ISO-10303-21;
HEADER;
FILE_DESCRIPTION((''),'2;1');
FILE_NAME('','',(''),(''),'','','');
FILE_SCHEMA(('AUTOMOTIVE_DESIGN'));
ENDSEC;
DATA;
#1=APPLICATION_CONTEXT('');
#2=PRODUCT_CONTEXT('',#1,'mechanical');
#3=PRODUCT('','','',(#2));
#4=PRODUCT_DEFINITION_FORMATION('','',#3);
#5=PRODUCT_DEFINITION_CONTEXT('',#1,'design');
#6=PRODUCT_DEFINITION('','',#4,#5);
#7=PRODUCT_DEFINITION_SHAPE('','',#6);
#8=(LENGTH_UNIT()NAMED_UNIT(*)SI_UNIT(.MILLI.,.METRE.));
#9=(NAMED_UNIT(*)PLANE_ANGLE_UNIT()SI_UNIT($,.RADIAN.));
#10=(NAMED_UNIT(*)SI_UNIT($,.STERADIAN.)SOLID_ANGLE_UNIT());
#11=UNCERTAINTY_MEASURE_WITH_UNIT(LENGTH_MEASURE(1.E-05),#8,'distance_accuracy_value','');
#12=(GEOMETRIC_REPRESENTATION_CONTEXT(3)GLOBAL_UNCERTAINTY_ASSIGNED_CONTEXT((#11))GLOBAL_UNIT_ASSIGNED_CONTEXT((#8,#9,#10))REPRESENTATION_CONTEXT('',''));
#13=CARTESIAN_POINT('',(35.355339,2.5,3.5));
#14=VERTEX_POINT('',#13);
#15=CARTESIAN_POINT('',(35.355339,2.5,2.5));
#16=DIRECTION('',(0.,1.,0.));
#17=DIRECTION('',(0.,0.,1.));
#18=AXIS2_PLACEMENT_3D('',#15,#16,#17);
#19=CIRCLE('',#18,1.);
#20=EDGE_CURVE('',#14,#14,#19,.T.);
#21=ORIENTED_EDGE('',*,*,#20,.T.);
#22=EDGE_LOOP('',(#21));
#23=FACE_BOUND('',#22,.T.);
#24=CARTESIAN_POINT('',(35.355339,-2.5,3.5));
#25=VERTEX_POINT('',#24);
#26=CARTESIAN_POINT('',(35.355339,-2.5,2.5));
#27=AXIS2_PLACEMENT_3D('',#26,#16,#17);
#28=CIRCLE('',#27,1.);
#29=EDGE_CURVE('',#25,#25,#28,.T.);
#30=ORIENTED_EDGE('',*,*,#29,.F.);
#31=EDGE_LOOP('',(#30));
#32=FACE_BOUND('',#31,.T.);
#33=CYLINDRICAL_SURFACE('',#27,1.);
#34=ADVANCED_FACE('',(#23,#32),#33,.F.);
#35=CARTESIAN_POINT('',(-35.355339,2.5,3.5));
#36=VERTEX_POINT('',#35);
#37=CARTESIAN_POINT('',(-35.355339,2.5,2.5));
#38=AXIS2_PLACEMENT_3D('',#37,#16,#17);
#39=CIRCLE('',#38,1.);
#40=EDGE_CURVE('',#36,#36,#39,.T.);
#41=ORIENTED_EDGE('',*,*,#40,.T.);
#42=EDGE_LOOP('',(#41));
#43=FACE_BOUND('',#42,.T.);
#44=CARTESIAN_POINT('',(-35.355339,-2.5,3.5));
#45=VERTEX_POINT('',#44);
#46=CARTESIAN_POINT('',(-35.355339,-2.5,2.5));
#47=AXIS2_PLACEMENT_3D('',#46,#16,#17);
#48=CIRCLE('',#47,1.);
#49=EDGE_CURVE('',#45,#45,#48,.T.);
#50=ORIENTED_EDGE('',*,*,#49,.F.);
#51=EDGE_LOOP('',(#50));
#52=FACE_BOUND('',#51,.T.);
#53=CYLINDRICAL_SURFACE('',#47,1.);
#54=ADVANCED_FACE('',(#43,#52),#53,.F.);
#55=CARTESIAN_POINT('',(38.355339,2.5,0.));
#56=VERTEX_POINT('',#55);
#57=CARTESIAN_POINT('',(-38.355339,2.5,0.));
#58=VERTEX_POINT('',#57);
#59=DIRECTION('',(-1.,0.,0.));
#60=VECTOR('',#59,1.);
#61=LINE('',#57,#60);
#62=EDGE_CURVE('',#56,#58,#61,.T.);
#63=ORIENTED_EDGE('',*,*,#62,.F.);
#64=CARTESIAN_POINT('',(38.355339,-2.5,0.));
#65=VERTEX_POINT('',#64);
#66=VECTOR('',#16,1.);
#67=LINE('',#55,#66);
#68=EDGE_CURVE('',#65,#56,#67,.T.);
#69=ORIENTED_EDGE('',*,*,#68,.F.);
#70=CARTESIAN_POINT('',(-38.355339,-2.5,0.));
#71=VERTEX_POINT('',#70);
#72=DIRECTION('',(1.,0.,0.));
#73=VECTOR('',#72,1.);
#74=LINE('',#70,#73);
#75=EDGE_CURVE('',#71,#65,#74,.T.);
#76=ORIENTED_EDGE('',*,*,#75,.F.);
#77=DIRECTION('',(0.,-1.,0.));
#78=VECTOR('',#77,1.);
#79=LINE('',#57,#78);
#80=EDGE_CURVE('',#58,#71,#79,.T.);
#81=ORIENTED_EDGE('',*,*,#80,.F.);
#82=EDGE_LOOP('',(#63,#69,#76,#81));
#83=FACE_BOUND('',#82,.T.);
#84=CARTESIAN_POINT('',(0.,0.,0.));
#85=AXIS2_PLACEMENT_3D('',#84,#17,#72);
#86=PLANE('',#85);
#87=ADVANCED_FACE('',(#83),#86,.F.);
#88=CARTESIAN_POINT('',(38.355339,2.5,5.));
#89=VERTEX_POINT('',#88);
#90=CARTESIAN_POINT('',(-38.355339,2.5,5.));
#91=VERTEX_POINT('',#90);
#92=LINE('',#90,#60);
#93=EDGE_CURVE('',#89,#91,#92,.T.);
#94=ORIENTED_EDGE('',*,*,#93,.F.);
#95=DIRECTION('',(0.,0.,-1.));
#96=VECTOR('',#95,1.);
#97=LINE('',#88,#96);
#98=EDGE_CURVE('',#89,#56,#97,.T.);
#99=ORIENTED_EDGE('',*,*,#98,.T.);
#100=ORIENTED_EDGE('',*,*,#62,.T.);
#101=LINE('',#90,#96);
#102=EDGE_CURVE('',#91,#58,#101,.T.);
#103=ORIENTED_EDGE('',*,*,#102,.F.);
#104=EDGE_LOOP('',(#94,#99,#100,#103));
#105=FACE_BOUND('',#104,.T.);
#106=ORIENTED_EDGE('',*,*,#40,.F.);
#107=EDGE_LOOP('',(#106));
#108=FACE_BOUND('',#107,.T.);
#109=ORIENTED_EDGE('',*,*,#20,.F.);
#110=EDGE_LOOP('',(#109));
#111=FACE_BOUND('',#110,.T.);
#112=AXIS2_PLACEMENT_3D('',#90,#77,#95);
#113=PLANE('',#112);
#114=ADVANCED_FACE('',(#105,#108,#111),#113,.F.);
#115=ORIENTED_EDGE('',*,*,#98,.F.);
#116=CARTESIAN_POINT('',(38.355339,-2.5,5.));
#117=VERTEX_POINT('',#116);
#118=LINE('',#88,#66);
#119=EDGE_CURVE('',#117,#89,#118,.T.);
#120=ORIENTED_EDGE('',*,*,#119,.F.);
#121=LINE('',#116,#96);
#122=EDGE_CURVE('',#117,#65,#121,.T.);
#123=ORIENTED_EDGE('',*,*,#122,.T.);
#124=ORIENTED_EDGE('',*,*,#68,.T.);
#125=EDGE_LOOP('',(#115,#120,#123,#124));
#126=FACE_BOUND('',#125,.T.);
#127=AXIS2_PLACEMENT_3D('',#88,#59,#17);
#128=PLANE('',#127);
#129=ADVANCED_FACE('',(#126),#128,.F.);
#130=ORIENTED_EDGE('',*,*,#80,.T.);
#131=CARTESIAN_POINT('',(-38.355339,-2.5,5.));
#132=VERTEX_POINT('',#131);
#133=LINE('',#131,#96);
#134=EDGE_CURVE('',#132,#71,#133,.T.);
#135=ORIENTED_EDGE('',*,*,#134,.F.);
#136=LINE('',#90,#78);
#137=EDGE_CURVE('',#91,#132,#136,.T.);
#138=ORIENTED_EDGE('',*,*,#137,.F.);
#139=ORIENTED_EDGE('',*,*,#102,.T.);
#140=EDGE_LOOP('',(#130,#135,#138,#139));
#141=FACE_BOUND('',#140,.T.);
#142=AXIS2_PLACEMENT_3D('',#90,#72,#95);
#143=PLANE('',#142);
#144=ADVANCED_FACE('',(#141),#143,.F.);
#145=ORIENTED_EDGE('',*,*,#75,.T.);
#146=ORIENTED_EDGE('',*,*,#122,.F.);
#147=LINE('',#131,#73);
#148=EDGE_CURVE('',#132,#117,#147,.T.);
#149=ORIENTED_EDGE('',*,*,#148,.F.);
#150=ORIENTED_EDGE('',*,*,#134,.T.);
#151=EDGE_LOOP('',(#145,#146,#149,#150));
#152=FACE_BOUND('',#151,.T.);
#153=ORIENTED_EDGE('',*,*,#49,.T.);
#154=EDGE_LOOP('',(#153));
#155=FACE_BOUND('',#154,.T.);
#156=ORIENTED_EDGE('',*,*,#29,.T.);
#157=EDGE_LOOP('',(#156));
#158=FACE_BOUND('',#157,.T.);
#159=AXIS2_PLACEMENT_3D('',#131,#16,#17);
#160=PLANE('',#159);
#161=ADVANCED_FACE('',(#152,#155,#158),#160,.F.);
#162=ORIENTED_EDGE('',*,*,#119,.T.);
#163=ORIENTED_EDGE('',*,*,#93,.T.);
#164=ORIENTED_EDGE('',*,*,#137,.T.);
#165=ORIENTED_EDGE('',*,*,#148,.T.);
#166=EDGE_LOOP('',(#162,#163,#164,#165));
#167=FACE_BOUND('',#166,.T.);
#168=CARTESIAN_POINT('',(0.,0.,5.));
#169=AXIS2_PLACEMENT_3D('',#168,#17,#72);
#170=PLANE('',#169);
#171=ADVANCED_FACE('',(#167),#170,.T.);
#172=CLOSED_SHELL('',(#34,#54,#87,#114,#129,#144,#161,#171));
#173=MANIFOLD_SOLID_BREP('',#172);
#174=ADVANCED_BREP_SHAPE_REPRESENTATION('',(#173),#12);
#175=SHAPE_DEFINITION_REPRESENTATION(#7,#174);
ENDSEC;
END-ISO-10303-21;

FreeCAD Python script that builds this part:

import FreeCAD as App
import Part
import Sketcher
from FreeCAD import Vector
Q = App.Units.Quantity


def add_polygon(sketch, points):
    """Adds a closed chain of lines whose ends are joined by coincident constraints."""
    first, n = sketch.GeometryCount, len(points)
    for a, b in zip(points, points[1:] + points[:1]):
        sketch.addGeometry(Part.LineSegment(App.Vector(*a, 0), App.Vector(*b, 0)), False)
    for i in range(n):
        sketch.addConstraint(Sketcher.Constraint("Coincident", first + i, 2, first + (i + 1) % n, 1))

doc = App.newDocument("Part")
params = doc.addObject("Spreadsheet::Sheet", "Params")
for row, (alias, value) in enumerate([
    ("sketch1_height", "5 mm"),
    ("pad1_length", "5 mm"),
    ("sketch2_diameter", "2 mm"),
], start=1):
    params.set(f"A{row}", alias)
    params.set(f"B{row}", "=" + value)
    params.setAlias(f"B{row}", alias)

body = doc.addObject("PartDesign::Body", "Body")

# Sketch on XY plane
sketch1 = doc.addObject("Sketcher::SketchObject", "Sketch")
body.addObject(sketch1)
sketch1.AttachmentSupport = (doc.XY_Plane, [""])
sketch1.MapMode = "FlatFace"
add_polygon(sketch1, [(-38.355339, 2.5), (-38.355339, -2.5), (38.355339, -2.5), (38.355339, 2.5)])  # lines 0-3
sketch1.addConstraint([
    Sketcher.Constraint("Vertical", 0),
    Sketcher.Constraint("Horizontal", 1),
    Sketcher.Constraint("Vertical", 2),
    Sketcher.Constraint("Horizontal", 3),
    Sketcher.Constraint("Symmetric", 0, 2, 2, 2, -1, 1),
    Sketcher.Constraint("DistanceY", 0, 2, 0, 1, Q("5 mm")),
    Sketcher.Constraint("DistanceX", 1, 1, 1, 2, Q("76.710678 mm")),
])
sketch1.setExpression("Constraints[9]", "Params.sketch1_height")
pad1 = doc.addObject("PartDesign::Pad", "Pad")
body.addObject(pad1)
pad1.Profile = sketch1
pad1.setExpression("Length", "Params.pad1_length")

# Sketch on XZ plane
sketch2 = doc.addObject("Sketcher::SketchObject", "Sketch001")
body.addObject(sketch2)
sketch2.AttachmentSupport = (doc.XZ_Plane, [""])
sketch2.MapMode = "FlatFace"
sketch2.AttachmentOffset = App.Placement(Vector(0, 0, -2.5), App.Rotation())
sketch2.addGeometry([
    Part.Circle(Vector(-35.355339, 2.5, 0), Vector(0, 0, 1), 1),
    Part.Circle(Vector(35.355339, 2.5, 0), Vector(0, 0, 1), 1),
], False)
sketch2.addConstraint([
    Sketcher.Constraint("Equal", 0, 1),
    Sketcher.Constraint("Symmetric", 0, 3, 1, 3, -2),
    Sketcher.Constraint("Diameter", 0, Q("2 mm")),
    Sketcher.Constraint("DistanceY", -1, 1, 0, 3, Q("2.5 mm")),
    Sketcher.Constraint("DistanceX", 0, 3, -1, 1, Q("35.355339 mm")),
])
sketch2.setExpression("Constraints[2]", "Params.sketch2_diameter")
pocket1 = doc.addObject("PartDesign::Pocket", "Pocket")
body.addObject(pocket1)
pocket1.Profile = sketch2
pocket1.Type = "ThroughAll"
pocket1.Reversed = True

doc.recompute()
